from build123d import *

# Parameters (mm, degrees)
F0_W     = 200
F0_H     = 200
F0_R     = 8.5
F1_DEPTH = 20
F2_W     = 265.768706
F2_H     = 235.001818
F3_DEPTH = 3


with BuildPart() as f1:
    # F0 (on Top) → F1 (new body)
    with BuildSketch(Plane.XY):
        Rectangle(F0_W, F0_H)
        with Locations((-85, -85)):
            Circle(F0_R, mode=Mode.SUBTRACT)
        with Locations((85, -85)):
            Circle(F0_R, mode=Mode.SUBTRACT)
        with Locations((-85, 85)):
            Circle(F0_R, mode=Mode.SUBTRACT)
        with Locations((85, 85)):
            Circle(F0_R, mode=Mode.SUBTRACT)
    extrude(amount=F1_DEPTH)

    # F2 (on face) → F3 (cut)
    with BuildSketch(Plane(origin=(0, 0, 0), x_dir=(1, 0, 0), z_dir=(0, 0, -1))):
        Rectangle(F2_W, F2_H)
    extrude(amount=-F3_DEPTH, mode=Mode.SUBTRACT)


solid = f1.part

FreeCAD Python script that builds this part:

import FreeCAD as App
import Part
import Sketcher
Q = App.Units.Quantity

doc = App.newDocument("Part")
params = doc.addObject("Spreadsheet::Sheet", "Params")
for row, (alias, value) in enumerate([
    ("sketch1_diameter", "17 mm"),
    ("sketch1_width", "200 mm"),
    ("pad1_length", "20 mm"),
    ("pocket1_length", "3 mm"),
], start=1):
    params.set(f"A{row}", alias)
    params.set(f"B{row}", "=" + value)
    params.setAlias(f"B{row}", alias)

body = doc.addObject("PartDesign::Body", "Body")

# Sketch on XY plane
sketch1 = doc.addObject("Sketcher::SketchObject", "Sketch")
body.addObject(sketch1)
sketch1.AttachmentSupport = (doc.XY_Plane, [""])
sketch1.MapMode = "FlatFace"
sketch1.addGeometry([
    Part.LineSegment(App.Vector(-100, 100, 0), App.Vector(-100, -100, 0)),  # 0
    Part.LineSegment(App.Vector(-100, -100, 0), App.Vector(100, -100, 0)),  # 1
    Part.LineSegment(App.Vector(100, -100, 0), App.Vector(100, 100, 0)),  # 2
    Part.LineSegment(App.Vector(100, 100, 0), App.Vector(-100, 100, 0)),  # 3
    Part.Circle(App.Vector(-85, -85, 0), App.Vector(0, 0, 1), 8.5),  # 4
    Part.Circle(App.Vector(85, -85, 0), App.Vector(0, 0, 1), 8.5),  # 5
    Part.Circle(App.Vector(-85, 85, 0), App.Vector(0, 0, 1), 8.5),  # 6
    Part.Circle(App.Vector(85, 85, 0), App.Vector(0, 0, 1), 8.5),  # 7
], False)
sketch1.addConstraint([
    Sketcher.Constraint("Coincident", 0, 2, 1, 1),
    Sketcher.Constraint("Coincident", 1, 2, 2, 1),
    Sketcher.Constraint("Coincident", 2, 2, 3, 1),
    Sketcher.Constraint("Coincident", 3, 2, 0, 1),
    Sketcher.Constraint("Vertical", 0),
    Sketcher.Constraint("Horizontal", 1),
    Sketcher.Constraint("Vertical", 2),
    Sketcher.Constraint("Horizontal", 3),
    Sketcher.Constraint("Equal", 4, 5),
    Sketcher.Constraint("Equal", 5, 6),
    Sketcher.Constraint("Equal", 6, 7),
    Sketcher.Constraint("Symmetric", 5, 3, 6, 3, -1, 1),
    Sketcher.Constraint("Symmetric", 4, 3, 7, 3, -1, 1),
    Sketcher.Constraint("Symmetric", 0, 2, 2, 2, -1, 1),
    Sketcher.Constraint("Symmetric", 4, 3, 5, 3, -2),
    Sketcher.Constraint("Equal", 3, 0),
    Sketcher.Constraint("Diameter", 4, Q("17 mm")),
    Sketcher.Constraint("DistanceX", 1, 1, 1, 2, Q("200 mm")),
    Sketcher.Constraint("DistanceX", 4, 3, -1, 1, Q("85 mm")),
    Sketcher.Constraint("DistanceY", 4, 3, -1, 1, Q("85 mm")),
])
sketch1.setExpression("Constraints[16]", "Params.sketch1_diameter")
sketch1.setExpression("Constraints[17]", "Params.sketch1_width")
pad1 = doc.addObject("PartDesign::Pad", "Pad")
body.addObject(pad1)
pad1.Profile = sketch1
pad1.setExpression("Length", "Params.pad1_length")

# Sketch on XY plane
sketch2 = doc.addObject("Sketcher::SketchObject", "Sketch001")
body.addObject(sketch2)
sketch2.AttachmentSupport = (doc.XY_Plane, [""])
sketch2.MapMode = "FlatFace"
sketch2.addGeometry([
    Part.LineSegment(App.Vector(-132.884353, -117.500909, 0), App.Vector(-132.884353, 117.500909, 0)),
    Part.LineSegment(App.Vector(-132.884353, 117.500909, 0), App.Vector(132.884353, 117.500909, 0)),
    Part.LineSegment(App.Vector(132.884353, 117.500909, 0), App.Vector(132.884353, -117.500909, 0)),
    Part.LineSegment(App.Vector(132.884353, -117.500909, 0), App.Vector(-132.884353, -117.500909, 0)),
], False)
sketch2.addConstraint([
    Sketcher.Constraint("Coincident", 0, 2, 1, 1),
    Sketcher.Constraint("Coincident", 1, 2, 2, 1),
    Sketcher.Constraint("Coincident", 2, 2, 3, 1),
    Sketcher.Constraint("Coincident", 3, 2, 0, 1),
    Sketcher.Constraint("Vertical", 0),
    Sketcher.Constraint("Horizontal", 1),
    Sketcher.Constraint("Vertical", 2),
    Sketcher.Constraint("Horizontal", 3),
    Sketcher.Constraint("Symmetric", 0, 2, 2, 2, -1, 1),
    Sketcher.Constraint("DistanceX", 1, 1, 1, 2, Q("265.768706 mm")),
    Sketcher.Constraint("DistanceY", 0, 1, 0, 2, Q("235.001818 mm")),
])
pocket1 = doc.addObject("PartDesign::Pocket", "Pocket")
body.addObject(pocket1)
pocket1.Profile = sketch2
pocket1.setExpression("Length", "Params.pocket1_length")
pocket1.Reversed = True

doc.recompute()
